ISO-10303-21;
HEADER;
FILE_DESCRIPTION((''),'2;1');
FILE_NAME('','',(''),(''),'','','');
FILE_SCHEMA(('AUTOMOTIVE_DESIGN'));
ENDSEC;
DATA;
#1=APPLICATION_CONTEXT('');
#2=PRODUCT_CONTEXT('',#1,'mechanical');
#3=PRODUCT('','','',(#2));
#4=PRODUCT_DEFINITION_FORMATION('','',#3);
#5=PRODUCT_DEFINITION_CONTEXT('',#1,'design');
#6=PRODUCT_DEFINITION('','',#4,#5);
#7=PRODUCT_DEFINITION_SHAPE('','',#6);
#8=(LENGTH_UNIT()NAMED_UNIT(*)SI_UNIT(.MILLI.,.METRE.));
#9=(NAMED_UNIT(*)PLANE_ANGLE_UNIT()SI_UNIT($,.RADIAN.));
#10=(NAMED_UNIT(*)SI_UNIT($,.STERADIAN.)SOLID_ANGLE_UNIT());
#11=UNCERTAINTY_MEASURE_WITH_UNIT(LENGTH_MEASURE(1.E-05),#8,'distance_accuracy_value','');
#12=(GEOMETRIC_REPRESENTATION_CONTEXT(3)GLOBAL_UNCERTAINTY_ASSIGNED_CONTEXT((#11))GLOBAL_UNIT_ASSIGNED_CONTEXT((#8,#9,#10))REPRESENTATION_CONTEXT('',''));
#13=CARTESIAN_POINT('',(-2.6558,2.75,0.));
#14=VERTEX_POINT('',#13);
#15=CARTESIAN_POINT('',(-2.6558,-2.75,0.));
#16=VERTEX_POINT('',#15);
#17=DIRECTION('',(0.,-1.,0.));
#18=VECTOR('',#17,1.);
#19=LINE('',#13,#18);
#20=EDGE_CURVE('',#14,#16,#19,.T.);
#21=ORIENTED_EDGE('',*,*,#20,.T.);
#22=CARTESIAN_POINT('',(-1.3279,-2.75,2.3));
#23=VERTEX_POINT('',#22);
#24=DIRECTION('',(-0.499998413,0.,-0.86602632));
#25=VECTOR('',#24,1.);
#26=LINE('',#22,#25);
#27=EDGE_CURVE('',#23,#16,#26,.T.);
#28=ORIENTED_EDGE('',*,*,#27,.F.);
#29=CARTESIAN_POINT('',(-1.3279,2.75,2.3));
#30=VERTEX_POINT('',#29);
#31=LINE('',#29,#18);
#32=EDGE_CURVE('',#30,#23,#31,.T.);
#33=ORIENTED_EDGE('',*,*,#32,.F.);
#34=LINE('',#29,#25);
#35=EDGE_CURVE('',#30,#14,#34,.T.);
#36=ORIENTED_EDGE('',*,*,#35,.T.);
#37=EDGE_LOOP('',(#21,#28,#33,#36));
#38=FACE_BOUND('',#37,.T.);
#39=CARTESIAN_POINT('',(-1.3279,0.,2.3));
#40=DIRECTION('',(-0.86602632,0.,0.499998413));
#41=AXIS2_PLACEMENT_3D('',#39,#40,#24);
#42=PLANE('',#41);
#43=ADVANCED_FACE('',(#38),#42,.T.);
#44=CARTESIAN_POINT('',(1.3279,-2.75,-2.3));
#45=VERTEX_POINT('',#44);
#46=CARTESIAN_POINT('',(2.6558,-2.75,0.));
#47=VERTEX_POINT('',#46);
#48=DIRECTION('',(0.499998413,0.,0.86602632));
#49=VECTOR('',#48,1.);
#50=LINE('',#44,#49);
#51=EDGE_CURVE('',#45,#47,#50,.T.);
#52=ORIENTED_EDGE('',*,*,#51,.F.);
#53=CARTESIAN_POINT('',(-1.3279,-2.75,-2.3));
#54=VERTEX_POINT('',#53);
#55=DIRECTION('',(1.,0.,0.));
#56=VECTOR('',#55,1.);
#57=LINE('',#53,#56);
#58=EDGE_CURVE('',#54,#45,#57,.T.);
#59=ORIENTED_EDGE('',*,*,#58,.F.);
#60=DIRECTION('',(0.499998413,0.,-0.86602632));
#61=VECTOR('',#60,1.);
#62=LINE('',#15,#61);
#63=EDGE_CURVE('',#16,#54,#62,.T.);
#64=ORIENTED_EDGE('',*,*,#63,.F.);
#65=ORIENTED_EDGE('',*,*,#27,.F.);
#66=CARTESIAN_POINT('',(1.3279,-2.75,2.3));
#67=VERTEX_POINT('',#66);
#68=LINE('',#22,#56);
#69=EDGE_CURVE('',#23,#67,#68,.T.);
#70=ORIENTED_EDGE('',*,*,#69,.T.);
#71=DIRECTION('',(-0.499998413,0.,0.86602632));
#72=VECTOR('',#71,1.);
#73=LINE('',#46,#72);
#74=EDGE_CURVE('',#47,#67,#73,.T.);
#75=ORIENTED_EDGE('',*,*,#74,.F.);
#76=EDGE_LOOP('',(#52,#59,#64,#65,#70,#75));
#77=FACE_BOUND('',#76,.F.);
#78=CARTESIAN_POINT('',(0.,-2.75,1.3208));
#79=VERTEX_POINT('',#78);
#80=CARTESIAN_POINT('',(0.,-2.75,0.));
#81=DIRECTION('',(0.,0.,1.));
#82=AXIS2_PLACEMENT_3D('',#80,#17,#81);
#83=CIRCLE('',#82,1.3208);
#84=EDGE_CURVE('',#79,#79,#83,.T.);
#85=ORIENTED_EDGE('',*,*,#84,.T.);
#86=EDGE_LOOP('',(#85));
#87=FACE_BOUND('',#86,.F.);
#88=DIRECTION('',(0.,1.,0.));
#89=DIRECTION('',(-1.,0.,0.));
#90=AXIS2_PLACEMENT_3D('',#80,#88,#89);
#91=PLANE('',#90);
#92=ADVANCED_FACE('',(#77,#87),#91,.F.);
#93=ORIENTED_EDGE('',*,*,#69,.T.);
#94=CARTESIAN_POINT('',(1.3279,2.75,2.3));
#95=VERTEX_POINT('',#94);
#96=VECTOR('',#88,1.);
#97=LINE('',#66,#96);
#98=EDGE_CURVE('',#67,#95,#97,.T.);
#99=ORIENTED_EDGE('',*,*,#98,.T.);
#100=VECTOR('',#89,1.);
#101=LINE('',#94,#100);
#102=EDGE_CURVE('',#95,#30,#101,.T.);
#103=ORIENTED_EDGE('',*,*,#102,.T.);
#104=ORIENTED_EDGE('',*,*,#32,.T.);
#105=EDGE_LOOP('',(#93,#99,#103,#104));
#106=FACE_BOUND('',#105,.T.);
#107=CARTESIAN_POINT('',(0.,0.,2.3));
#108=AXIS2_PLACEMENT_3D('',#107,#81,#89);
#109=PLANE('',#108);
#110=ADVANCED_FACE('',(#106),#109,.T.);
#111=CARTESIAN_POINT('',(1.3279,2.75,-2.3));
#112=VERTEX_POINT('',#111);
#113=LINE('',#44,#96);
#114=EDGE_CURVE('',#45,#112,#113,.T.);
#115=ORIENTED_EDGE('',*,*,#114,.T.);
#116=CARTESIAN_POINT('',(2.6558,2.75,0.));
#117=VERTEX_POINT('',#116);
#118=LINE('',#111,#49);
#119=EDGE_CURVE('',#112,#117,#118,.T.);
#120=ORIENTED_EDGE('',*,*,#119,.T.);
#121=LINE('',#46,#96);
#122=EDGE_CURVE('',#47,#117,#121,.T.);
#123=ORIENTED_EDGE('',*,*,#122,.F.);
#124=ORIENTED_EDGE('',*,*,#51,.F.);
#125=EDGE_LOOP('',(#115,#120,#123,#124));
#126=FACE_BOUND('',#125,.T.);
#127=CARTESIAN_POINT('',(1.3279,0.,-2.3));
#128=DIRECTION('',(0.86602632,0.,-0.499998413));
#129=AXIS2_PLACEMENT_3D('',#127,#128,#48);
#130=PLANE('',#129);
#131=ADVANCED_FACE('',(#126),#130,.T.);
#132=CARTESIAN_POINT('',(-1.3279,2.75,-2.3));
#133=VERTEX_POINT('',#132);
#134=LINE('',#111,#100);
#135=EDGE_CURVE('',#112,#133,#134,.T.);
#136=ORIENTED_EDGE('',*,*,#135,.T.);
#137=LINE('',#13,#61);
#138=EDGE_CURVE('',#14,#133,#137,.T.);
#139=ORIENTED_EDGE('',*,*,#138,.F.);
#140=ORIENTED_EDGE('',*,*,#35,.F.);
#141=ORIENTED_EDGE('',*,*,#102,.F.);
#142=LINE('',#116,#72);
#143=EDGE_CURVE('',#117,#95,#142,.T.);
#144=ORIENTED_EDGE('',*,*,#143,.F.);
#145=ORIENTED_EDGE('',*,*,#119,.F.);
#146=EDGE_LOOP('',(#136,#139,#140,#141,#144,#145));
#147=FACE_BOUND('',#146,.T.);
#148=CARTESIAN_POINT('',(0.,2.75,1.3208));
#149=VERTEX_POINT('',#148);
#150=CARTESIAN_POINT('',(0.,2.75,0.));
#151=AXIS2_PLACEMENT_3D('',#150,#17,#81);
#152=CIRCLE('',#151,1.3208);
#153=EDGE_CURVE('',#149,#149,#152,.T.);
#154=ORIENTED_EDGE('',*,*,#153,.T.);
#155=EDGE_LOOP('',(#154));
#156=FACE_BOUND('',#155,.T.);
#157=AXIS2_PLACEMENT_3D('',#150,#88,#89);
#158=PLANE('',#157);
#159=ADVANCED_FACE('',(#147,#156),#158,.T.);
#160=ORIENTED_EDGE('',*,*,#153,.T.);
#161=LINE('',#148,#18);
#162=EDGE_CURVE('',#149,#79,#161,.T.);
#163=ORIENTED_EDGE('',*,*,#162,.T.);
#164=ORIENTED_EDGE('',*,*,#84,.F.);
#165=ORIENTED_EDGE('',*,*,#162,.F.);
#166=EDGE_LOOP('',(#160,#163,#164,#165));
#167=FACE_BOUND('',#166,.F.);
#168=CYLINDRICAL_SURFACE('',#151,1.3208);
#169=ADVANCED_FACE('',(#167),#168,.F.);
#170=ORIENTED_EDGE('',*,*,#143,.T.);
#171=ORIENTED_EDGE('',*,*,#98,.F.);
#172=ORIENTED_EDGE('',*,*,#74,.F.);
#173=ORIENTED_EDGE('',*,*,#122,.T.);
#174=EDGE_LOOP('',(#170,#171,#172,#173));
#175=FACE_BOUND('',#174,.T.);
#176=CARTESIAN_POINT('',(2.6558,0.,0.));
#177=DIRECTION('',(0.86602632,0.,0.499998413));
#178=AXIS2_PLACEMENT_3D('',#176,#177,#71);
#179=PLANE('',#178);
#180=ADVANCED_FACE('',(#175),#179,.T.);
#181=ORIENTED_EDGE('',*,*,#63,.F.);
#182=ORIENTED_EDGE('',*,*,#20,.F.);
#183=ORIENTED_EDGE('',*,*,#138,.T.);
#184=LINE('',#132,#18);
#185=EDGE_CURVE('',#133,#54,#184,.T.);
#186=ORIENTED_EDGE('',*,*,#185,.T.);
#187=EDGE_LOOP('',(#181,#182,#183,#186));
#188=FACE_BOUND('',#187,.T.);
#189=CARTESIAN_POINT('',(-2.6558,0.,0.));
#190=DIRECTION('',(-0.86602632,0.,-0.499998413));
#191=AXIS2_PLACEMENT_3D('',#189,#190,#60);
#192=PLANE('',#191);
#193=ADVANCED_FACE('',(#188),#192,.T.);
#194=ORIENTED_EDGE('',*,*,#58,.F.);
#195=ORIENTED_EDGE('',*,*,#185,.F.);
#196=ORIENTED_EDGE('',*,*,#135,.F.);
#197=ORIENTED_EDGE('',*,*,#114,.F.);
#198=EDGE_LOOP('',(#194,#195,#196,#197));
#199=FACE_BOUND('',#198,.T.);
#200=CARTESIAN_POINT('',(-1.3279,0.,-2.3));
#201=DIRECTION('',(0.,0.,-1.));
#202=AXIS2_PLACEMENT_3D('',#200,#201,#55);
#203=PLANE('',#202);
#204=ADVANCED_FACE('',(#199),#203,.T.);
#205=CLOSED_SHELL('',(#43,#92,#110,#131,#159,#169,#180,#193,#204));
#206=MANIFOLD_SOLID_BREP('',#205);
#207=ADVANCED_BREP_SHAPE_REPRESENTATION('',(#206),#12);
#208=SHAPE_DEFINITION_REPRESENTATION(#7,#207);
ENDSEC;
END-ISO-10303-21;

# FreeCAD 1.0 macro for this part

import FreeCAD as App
import Part
import Sketcher
Q = App.Units.Quantity


def add_polygon(sketch, points):
    """Adds a closed chain of lines whose ends are joined by coincident constraints."""
    first, n = sketch.GeometryCount, len(points)
    for a, b in zip(points, points[1:] + points[:1]):
        sketch.addGeometry(Part.LineSegment(App.Vector(*a, 0), App.Vector(*b, 0)), False)
    for i in range(n):
        sketch.addConstraint(Sketcher.Constraint("Coincident", first + i, 2, first + (i + 1) % n, 1))

doc = App.newDocument("Part")
body = doc.addObject("PartDesign::Body", "Body")

sketch1 = doc.addObject("Sketcher::SketchObject", "Sketch")
body.addObject(sketch1)
sketch1.AttachmentSupport = (doc.XZ_Plane, [""])
sketch1.MapMode = "FlatFace"
add_polygon(sketch1, [(-1.3, 2.3), (1.3, 2.3), (2.7, 0), (1.3, -2.3), (-1.3, -2.3), (-2.7, 0)])
sketch1.addConstraint(Sketcher.Constraint("Horizontal", 0))
sketch1.addConstraint(Sketcher.Constraint("Horizontal", 3))
sketch1.addConstraint(Sketcher.Constraint("Symmetric", 0, 2, 3, 2, -1, 1))
sketch1.addConstraint(Sketcher.Constraint("Symmetric", 1, 2, 4, 2, -1, 1))
sketch1.addConstraint(Sketcher.Constraint("PointOnObject", 1, 2, -1))
sketch1.addConstraint(Sketcher.Constraint("Parallel", 2, 5))
sketch1.addConstraint(Sketcher.Constraint("Vertical", 0, 2, 2, 2))
sketch1.addConstraint(Sketcher.Constraint("Angle", 1, Q("-60 deg")))
sketch1.addConstraint(Sketcher.Constraint("DistanceY", 2, 2, 0, 2, Q("0.1811 in")))
sketch1.addConstraint(Sketcher.Constraint("DistanceX", 0, 1, 0, 2, Q("2.6558 mm")))
pad1 = doc.addObject("PartDesign::Pad", "Pad")
body.addObject(pad1)
pad1.Profile = sketch1
pad1.Length = 5.5
pad1.Midplane = True

sketch2 = doc.addObject("Sketcher::SketchObject", "Sketch001")
body.addObject(sketch2)
sketch2.AttachmentSupport = (doc.XZ_Plane, [""])
sketch2.MapMode = "FlatFace"
sketch2.AttachmentOffset = App.Placement(App.Vector(0, 0, -2.75), App.Rotation())
sketch2.addGeometry(Part.Circle(App.Vector(0, 0, 0), App.Vector(0, 0, 1), 1.3), False)
sketch2.addConstraint(Sketcher.Constraint("Coincident", 0, 3, -1, 1))
sketch2.addConstraint(Sketcher.Constraint("Diameter", 0, Q("0.104 in")))
doc.recompute()
hole = doc.addObject("PartDesign::Hole", "Hole")
body.addObject(hole)
hole.Profile = sketch2
hole.ThreadType = "None"
hole.Diameter = Q("0.104 in")
hole.DepthType = "ThroughAll"
hole.Reversed = True

doc.recompute()
